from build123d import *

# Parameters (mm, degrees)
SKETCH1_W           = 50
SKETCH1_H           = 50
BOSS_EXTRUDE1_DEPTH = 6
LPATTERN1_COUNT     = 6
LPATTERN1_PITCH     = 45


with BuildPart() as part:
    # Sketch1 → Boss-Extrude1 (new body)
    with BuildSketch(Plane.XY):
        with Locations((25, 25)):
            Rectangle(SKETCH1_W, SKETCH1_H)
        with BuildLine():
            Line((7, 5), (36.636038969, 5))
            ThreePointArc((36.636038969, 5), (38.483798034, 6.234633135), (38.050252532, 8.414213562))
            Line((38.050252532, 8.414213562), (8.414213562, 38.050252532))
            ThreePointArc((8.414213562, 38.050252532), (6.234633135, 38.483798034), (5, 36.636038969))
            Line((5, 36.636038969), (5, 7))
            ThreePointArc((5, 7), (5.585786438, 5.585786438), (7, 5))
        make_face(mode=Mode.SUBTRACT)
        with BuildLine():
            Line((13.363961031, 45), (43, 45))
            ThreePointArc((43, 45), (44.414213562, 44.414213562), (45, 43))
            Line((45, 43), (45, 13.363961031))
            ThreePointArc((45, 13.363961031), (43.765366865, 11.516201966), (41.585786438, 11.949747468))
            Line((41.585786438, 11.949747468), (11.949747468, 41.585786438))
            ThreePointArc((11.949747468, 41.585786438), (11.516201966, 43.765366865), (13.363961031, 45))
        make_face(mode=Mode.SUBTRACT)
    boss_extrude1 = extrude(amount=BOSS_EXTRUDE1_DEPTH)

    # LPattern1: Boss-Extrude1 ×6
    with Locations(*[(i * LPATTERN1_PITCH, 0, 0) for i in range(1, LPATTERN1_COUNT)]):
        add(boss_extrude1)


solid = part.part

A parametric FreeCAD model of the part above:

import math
import FreeCAD as App
import Part
import Sketcher

V = App.Vector


def add_polygon(sketch, points):
    """Adds a closed chain of lines whose ends are joined by coincident constraints."""
    first, n = sketch.GeometryCount, len(points)
    for a, b in zip(points, points[1:] + points[:1]):
        sketch.addGeometry(Part.LineSegment(App.Vector(*a, 0), App.Vector(*b, 0)), False)
    for i in range(n):
        sketch.addConstraint(Sketcher.Constraint("Coincident", first + i, 2, first + (i + 1) % n, 1))

doc = App.newDocument("Part")
body = doc.addObject("PartDesign::Body", "Body")

# Sketch on XY plane
sketch1 = body.newObject("Sketcher::SketchObject", "Sketch")
sketch1.AttachmentSupport = (doc.getObject("XY_Plane"), [""])
sketch1.MapMode = "FlatFace"
add_polygon(sketch1, [(0, 50), (0, 0), (50, 0), (50, 50)])  # lines 0-3
sketch1.addGeometry(Part.LineSegment(V(36.6, 5, 0), V(7, 5, 0)), False)  # 4
sketch1.addGeometry(Part.ArcOfCircle(Part.Circle(V(7, 7, 0), V(0, 0, 1), 2), math.radians(-180), math.radians(-90)), False)  # 5
sketch1.addGeometry(Part.LineSegment(V(5, 7, 0), V(5, 36.6, 0)), False)  # 6
sketch1.addGeometry(Part.ArcOfCircle(Part.Circle(V(7, 36.6, 0), V(0, 0, 1), 2), math.radians(45), math.radians(180)), False)  # 7
sketch1.addGeometry(Part.LineSegment(V(8.4, 38.1, 0), V(38.1, 8.4, 0)), False)  # 8
sketch1.addGeometry(Part.ArcOfCircle(Part.Circle(V(36.6, 7, 0), V(0, 0, 1), 2), math.radians(-90), math.radians(45)), False)  # 9
sketch1.addGeometry(Part.ArcOfCircle(Part.Circle(V(13.4, 43, 0), V(0, 0, 1), 2), math.radians(90), math.radians(225)), False)  # 10
sketch1.addGeometry(Part.LineSegment(V(13.4, 45, 0), V(43, 45, 0)), False)  # 11
sketch1.addGeometry(Part.ArcOfCircle(Part.Circle(V(43, 43, 0), V(0, 0, 1), 2), math.radians(0), math.radians(90)), False)  # 12
sketch1.addGeometry(Part.LineSegment(V(45, 43, 0), V(45, 13.4, 0)), False)  # 13
sketch1.addGeometry(Part.ArcOfCircle(Part.Circle(V(43, 13.4, 0), V(0, 0, 1), 2), math.radians(-135), math.radians(0)), False)  # 14
sketch1.addGeometry(Part.LineSegment(V(41.6, 11.9, 0), V(11.9, 41.6, 0)), False)  # 15
sketch1.addConstraint(Sketcher.Constraint("Tangent", 4, 2, 5, 2))
sketch1.addConstraint(Sketcher.Constraint("Tangent", 5, 1, 6, 1))
sketch1.addConstraint(Sketcher.Constraint("Tangent", 6, 2, 7, 2))
sketch1.addConstraint(Sketcher.Constraint("Tangent", 7, 1, 8, 1))
sketch1.addConstraint(Sketcher.Constraint("Tangent", 8, 2, 9, 2))
sketch1.addConstraint(Sketcher.Constraint("Tangent", 9, 1, 4, 1))
sketch1.addConstraint(Sketcher.Constraint("Tangent", 10, 1, 11, 1))
sketch1.addConstraint(Sketcher.Constraint("Tangent", 11, 2, 12, 2))
sketch1.addConstraint(Sketcher.Constraint("Tangent", 12, 1, 13, 1))
sketch1.addConstraint(Sketcher.Constraint("Tangent", 13, 2, 14, 2))
sketch1.addConstraint(Sketcher.Constraint("Tangent", 14, 1, 15, 1))
sketch1.addConstraint(Sketcher.Constraint("Tangent", 15, 2, 10, 2))
sketch1.addConstraint(Sketcher.Constraint("Vertical", 0))
sketch1.addConstraint(Sketcher.Constraint("Horizontal", 1))
sketch1.addConstraint(Sketcher.Constraint("Vertical", 2))
sketch1.addConstraint(Sketcher.Constraint("Horizontal", 3))
sketch1.addConstraint(Sketcher.Constraint("Horizontal", 4))
sketch1.addConstraint(Sketcher.Constraint("Vertical", 6))
sketch1.addConstraint(Sketcher.Constraint("Horizontal", 11))
sketch1.addConstraint(Sketcher.Constraint("Vertical", 13))
sketch1.addConstraint(Sketcher.Constraint("Coincident", 0, 2, -1, 1))
sketch1.addConstraint(Sketcher.Constraint("Equal", 5, 7))
sketch1.addConstraint(Sketcher.Constraint("Equal", 7, 9))
sketch1.addConstraint(Sketcher.Constraint("Equal", 9, 10))
sketch1.addConstraint(Sketcher.Constraint("Equal", 10, 12))
sketch1.addConstraint(Sketcher.Constraint("Equal", 12, 14))
sketch1.addConstraint(Sketcher.Constraint("Parallel", 8, 15))
sketch1.addConstraint(Sketcher.Constraint("Equal", 4, 11))
sketch1.addConstraint(Sketcher.Constraint("Equal", 3, 0))
sketch1.addConstraint(Sketcher.Constraint("Equal", 11, 6))
sketch1.addConstraint(Sketcher.Constraint("Radius", 5, 2.0))
sketch1.addConstraint(Sketcher.Constraint("DistanceX", 1, 1, 1, 2, 50.0))
sketch1.addConstraint(Sketcher.Constraint("DistanceX", -1, 1, 5, 3, 7.0))
sketch1.addConstraint(Sketcher.Constraint("DistanceY", -1, 1, 5, 3, 7.0))
sketch1.addConstraint(Sketcher.Constraint("DistanceY", -1, 1, 10, 3, 43.0))
sketch1.addConstraint(Sketcher.Constraint("DistanceX", -1, 1, 12, 3, 43.0))
sketch1.addConstraint(Sketcher.Constraint("DistanceX", 4, 2, 4, 1, 29.636039))
pad1 = body.newObject("PartDesign::Pad", "Pad")
pad1.Profile = sketch1
pad1.Length = 6
doc.recompute()

linearpattern = body.newObject("PartDesign::LinearPattern", "LinearPattern")
linearpattern.Originals = [pad1]
linearpattern.Direction = (doc.getObject("X_Axis"), [""])
linearpattern.Mode = "offset"
linearpattern.Offset = 45
linearpattern.Occurrences = 6
body.Tip = linearpattern

doc.recompute()
